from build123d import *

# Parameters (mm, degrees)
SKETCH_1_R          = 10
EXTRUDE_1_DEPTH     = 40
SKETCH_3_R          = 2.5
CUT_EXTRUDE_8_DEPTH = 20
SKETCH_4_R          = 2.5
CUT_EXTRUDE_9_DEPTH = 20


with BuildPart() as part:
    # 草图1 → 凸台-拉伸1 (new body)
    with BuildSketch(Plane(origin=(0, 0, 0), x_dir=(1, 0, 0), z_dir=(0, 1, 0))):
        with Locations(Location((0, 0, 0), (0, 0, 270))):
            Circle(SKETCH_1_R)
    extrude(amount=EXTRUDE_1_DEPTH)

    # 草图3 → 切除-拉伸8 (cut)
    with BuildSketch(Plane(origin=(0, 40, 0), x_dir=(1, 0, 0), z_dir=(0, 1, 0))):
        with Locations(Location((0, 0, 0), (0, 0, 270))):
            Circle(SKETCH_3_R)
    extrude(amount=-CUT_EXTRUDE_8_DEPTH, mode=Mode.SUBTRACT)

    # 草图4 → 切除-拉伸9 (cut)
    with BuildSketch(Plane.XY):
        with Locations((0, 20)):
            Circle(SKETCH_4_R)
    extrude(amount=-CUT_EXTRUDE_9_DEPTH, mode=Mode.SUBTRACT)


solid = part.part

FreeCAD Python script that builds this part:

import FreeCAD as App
import Part
import Sketcher
from FreeCAD import Vector

doc = App.newDocument("Part")
body = doc.addObject("PartDesign::Body", "Body")

sketch1 = body.newObject("Sketcher::SketchObject", "Sketch")
sketch1.AttachmentSupport = (doc.getObject("XZ_Plane"), [""])
sketch1.MapMode = "FlatFace"
sketch1.addGeometry(Part.Circle(Vector(0, 0, 0), Vector(0, 0, 1), 10), False)
sketch1.addConstraint(Sketcher.Constraint("Coincident", 0, 3, -1, 1))
sketch1.addConstraint(Sketcher.Constraint("Diameter", 0, 20.0))
pad1 = body.newObject("PartDesign::Pad", "Pad")
pad1.Profile = sketch1
pad1.Length = 40
pad1.Reversed = True

sketch2 = body.newObject("Sketcher::SketchObject", "Sketch001")
sketch2.AttachmentSupport = (doc.getObject("XZ_Plane"), [""])
sketch2.MapMode = "FlatFace"
sketch2.AttachmentOffset = App.Placement(Vector(0, 0, -40), App.Rotation())
sketch2.addGeometry(Part.Circle(Vector(0, 0, 0), Vector(0, 0, 1), 2.5), False)
sketch2.addConstraint(Sketcher.Constraint("Coincident", 0, 3, -1, 1))
sketch2.addConstraint(Sketcher.Constraint("Diameter", 0, 5.0))
pocket1 = body.newObject("PartDesign::Pocket", "Pocket")
pocket1.Profile = sketch2
pocket1.Length = 20
pocket1.Reversed = True

sketch3 = body.newObject("Sketcher::SketchObject", "Sketch002")
sketch3.AttachmentSupport = (doc.getObject("XY_Plane"), [""])
sketch3.MapMode = "FlatFace"
sketch3.addGeometry(Part.Circle(Vector(0, 20, 0), Vector(0, 0, 1), 2.5), False)
sketch3.addConstraint(Sketcher.Constraint("PointOnObject", 0, 3, -2))
sketch3.addConstraint(Sketcher.Constraint("Diameter", 0, 5.0))
sketch3.addConstraint(Sketcher.Constraint("DistanceY", -1, 1, 0, 3, 20.0))
pocket2 = body.newObject("PartDesign::Pocket", "Pocket001")
pocket2.Profile = sketch3
pocket2.Length = 20

doc.recompute()
